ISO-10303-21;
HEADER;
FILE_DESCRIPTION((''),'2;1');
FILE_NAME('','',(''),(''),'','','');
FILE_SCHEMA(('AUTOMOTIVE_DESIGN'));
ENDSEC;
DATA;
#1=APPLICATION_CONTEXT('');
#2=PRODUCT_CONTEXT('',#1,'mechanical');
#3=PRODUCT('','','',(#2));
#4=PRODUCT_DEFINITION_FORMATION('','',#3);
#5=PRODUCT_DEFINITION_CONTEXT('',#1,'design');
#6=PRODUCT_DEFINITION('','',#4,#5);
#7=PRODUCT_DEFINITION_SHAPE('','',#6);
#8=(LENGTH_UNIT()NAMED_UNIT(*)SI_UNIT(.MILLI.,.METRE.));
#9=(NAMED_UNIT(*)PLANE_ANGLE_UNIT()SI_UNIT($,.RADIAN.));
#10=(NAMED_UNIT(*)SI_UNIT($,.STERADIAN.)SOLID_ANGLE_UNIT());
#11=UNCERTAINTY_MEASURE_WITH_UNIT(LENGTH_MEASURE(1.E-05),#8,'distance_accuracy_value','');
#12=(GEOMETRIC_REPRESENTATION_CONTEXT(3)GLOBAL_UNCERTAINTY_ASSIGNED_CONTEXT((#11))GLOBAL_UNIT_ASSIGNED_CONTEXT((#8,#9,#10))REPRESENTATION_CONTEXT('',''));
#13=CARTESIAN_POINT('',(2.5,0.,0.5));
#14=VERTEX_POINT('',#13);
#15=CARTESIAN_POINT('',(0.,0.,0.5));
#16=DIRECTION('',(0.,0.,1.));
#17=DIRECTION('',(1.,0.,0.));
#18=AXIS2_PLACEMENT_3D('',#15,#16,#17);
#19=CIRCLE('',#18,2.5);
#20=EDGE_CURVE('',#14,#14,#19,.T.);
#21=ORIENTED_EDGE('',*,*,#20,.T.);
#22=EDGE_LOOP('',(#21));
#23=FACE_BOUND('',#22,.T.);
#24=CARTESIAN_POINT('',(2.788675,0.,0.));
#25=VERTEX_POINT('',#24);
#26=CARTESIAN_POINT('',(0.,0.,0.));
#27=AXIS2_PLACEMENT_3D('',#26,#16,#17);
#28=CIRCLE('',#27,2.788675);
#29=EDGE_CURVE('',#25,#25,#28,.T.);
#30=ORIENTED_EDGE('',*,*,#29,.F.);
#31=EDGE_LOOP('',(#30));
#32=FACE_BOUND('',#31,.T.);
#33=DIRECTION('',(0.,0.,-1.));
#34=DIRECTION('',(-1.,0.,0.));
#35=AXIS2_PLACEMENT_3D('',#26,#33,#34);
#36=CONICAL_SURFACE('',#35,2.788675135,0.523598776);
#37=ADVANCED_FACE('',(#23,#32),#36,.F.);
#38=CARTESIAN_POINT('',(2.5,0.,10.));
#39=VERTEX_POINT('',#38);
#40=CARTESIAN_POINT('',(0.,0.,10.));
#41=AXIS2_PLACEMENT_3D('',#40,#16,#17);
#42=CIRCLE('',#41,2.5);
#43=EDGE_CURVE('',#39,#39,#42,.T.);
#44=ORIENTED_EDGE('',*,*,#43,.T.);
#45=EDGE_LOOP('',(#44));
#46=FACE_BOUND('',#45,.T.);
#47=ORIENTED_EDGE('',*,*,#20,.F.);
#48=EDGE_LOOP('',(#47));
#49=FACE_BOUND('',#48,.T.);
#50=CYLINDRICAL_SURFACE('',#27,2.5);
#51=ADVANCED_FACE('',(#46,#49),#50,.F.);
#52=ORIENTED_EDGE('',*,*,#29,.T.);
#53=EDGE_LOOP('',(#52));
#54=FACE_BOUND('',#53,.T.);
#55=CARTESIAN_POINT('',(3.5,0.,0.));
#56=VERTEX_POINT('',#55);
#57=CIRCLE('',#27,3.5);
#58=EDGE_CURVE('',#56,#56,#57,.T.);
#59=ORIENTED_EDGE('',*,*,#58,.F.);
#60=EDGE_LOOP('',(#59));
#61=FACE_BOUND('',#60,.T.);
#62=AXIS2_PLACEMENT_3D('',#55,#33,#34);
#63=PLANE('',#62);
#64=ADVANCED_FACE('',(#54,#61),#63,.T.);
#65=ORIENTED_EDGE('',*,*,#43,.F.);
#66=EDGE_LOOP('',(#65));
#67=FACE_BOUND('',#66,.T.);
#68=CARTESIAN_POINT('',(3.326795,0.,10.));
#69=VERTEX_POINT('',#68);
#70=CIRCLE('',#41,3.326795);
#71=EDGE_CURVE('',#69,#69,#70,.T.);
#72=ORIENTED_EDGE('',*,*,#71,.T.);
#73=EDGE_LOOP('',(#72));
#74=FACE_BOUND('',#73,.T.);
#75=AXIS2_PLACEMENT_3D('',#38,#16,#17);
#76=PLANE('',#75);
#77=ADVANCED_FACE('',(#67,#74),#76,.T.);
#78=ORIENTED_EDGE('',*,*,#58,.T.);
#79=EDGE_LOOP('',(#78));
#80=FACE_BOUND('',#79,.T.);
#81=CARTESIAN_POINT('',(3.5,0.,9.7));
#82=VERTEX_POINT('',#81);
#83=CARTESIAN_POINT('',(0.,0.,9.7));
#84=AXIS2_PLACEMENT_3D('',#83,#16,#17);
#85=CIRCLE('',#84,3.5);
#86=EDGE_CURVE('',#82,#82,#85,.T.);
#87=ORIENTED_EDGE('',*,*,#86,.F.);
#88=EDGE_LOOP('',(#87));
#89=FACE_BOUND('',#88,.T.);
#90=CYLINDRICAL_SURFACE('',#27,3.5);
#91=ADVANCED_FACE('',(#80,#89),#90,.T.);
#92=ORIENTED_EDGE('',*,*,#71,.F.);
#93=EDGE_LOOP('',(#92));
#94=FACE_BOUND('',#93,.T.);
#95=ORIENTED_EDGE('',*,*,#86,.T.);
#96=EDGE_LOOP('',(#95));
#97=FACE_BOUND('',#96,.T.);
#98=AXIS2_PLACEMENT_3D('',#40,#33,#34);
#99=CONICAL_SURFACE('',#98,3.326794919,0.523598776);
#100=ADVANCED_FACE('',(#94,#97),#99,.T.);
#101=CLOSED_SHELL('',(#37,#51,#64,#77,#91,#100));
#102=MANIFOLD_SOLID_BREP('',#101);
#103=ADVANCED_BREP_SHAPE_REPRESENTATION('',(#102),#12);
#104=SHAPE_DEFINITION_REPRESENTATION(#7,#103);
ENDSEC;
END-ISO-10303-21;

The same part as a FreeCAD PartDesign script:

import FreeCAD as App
import Part
import Sketcher

V = App.Vector
Q = App.Units.Quantity

doc = App.newDocument("Part")
body = doc.addObject("PartDesign::Body", "Body")

# Sketch on XZ plane
sketch1 = body.newObject("Sketcher::SketchObject", "Sketch")
sketch1.AttachmentSupport = (doc.getObject("XZ_Plane"), [""])
sketch1.MapMode = "FlatFace"
sketch1.addGeometry([
    Part.LineSegment(V(2.79, 0, 0), V(2.5, 0.5, 0)),  # 0
    Part.LineSegment(V(2.5, 0.5, 0), V(2.5, 10, 0)),  # 1
    Part.LineSegment(V(2.5, 10, 0), V(3.33, 10, 0)),  # 2
    Part.LineSegment(V(3.33, 10, 0), V(3.5, 9.7, 0)),  # 3
    Part.LineSegment(V(3.5, 9.7, 0), V(3.5, 0, 0)),  # 4
    Part.LineSegment(V(3.5, 0, 0), V(2.79, 0, 0)),  # 5
], False)
sketch1.addConstraint([
    Sketcher.Constraint("Coincident", 0, 2, 1, 1),
    Sketcher.Constraint("Coincident", 1, 2, 2, 1),
    Sketcher.Constraint("Coincident", 2, 2, 3, 1),
    Sketcher.Constraint("Coincident", 3, 2, 4, 1),
    Sketcher.Constraint("Coincident", 4, 2, 5, 1),
    Sketcher.Constraint("Coincident", 5, 2, 0, 1),
    Sketcher.Constraint("Vertical", 1),
    Sketcher.Constraint("Horizontal", 2),
    Sketcher.Constraint("Vertical", 4),
    Sketcher.Constraint("Horizontal", 5),
    Sketcher.Constraint("PointOnObject", 4, 2, -1),
    Sketcher.Constraint("Parallel", 0, 3),
    Sketcher.Constraint("Angle", 0, Q("120 deg")),
    Sketcher.Constraint("DistanceY", 1, 1, 1, 2, 9.5),
    Sketcher.Constraint("DistanceY", 4, 2, 4, 1, 9.7),
    Sketcher.Constraint("DistanceY", -1, 1, 1, 2, 10.0),
    Sketcher.Constraint("DistanceX", 1, 2, 3, 2, 1.0),
    Sketcher.Constraint("DistanceX", -1, 1, 0, 2, 2.5),
])
revolution = body.newObject("PartDesign::Revolution", "Revolution")
revolution.Profile = sketch1
revolution.ReferenceAxis = (sketch1, ["V_Axis"])
revolution.Angle = 360

doc.recompute()
